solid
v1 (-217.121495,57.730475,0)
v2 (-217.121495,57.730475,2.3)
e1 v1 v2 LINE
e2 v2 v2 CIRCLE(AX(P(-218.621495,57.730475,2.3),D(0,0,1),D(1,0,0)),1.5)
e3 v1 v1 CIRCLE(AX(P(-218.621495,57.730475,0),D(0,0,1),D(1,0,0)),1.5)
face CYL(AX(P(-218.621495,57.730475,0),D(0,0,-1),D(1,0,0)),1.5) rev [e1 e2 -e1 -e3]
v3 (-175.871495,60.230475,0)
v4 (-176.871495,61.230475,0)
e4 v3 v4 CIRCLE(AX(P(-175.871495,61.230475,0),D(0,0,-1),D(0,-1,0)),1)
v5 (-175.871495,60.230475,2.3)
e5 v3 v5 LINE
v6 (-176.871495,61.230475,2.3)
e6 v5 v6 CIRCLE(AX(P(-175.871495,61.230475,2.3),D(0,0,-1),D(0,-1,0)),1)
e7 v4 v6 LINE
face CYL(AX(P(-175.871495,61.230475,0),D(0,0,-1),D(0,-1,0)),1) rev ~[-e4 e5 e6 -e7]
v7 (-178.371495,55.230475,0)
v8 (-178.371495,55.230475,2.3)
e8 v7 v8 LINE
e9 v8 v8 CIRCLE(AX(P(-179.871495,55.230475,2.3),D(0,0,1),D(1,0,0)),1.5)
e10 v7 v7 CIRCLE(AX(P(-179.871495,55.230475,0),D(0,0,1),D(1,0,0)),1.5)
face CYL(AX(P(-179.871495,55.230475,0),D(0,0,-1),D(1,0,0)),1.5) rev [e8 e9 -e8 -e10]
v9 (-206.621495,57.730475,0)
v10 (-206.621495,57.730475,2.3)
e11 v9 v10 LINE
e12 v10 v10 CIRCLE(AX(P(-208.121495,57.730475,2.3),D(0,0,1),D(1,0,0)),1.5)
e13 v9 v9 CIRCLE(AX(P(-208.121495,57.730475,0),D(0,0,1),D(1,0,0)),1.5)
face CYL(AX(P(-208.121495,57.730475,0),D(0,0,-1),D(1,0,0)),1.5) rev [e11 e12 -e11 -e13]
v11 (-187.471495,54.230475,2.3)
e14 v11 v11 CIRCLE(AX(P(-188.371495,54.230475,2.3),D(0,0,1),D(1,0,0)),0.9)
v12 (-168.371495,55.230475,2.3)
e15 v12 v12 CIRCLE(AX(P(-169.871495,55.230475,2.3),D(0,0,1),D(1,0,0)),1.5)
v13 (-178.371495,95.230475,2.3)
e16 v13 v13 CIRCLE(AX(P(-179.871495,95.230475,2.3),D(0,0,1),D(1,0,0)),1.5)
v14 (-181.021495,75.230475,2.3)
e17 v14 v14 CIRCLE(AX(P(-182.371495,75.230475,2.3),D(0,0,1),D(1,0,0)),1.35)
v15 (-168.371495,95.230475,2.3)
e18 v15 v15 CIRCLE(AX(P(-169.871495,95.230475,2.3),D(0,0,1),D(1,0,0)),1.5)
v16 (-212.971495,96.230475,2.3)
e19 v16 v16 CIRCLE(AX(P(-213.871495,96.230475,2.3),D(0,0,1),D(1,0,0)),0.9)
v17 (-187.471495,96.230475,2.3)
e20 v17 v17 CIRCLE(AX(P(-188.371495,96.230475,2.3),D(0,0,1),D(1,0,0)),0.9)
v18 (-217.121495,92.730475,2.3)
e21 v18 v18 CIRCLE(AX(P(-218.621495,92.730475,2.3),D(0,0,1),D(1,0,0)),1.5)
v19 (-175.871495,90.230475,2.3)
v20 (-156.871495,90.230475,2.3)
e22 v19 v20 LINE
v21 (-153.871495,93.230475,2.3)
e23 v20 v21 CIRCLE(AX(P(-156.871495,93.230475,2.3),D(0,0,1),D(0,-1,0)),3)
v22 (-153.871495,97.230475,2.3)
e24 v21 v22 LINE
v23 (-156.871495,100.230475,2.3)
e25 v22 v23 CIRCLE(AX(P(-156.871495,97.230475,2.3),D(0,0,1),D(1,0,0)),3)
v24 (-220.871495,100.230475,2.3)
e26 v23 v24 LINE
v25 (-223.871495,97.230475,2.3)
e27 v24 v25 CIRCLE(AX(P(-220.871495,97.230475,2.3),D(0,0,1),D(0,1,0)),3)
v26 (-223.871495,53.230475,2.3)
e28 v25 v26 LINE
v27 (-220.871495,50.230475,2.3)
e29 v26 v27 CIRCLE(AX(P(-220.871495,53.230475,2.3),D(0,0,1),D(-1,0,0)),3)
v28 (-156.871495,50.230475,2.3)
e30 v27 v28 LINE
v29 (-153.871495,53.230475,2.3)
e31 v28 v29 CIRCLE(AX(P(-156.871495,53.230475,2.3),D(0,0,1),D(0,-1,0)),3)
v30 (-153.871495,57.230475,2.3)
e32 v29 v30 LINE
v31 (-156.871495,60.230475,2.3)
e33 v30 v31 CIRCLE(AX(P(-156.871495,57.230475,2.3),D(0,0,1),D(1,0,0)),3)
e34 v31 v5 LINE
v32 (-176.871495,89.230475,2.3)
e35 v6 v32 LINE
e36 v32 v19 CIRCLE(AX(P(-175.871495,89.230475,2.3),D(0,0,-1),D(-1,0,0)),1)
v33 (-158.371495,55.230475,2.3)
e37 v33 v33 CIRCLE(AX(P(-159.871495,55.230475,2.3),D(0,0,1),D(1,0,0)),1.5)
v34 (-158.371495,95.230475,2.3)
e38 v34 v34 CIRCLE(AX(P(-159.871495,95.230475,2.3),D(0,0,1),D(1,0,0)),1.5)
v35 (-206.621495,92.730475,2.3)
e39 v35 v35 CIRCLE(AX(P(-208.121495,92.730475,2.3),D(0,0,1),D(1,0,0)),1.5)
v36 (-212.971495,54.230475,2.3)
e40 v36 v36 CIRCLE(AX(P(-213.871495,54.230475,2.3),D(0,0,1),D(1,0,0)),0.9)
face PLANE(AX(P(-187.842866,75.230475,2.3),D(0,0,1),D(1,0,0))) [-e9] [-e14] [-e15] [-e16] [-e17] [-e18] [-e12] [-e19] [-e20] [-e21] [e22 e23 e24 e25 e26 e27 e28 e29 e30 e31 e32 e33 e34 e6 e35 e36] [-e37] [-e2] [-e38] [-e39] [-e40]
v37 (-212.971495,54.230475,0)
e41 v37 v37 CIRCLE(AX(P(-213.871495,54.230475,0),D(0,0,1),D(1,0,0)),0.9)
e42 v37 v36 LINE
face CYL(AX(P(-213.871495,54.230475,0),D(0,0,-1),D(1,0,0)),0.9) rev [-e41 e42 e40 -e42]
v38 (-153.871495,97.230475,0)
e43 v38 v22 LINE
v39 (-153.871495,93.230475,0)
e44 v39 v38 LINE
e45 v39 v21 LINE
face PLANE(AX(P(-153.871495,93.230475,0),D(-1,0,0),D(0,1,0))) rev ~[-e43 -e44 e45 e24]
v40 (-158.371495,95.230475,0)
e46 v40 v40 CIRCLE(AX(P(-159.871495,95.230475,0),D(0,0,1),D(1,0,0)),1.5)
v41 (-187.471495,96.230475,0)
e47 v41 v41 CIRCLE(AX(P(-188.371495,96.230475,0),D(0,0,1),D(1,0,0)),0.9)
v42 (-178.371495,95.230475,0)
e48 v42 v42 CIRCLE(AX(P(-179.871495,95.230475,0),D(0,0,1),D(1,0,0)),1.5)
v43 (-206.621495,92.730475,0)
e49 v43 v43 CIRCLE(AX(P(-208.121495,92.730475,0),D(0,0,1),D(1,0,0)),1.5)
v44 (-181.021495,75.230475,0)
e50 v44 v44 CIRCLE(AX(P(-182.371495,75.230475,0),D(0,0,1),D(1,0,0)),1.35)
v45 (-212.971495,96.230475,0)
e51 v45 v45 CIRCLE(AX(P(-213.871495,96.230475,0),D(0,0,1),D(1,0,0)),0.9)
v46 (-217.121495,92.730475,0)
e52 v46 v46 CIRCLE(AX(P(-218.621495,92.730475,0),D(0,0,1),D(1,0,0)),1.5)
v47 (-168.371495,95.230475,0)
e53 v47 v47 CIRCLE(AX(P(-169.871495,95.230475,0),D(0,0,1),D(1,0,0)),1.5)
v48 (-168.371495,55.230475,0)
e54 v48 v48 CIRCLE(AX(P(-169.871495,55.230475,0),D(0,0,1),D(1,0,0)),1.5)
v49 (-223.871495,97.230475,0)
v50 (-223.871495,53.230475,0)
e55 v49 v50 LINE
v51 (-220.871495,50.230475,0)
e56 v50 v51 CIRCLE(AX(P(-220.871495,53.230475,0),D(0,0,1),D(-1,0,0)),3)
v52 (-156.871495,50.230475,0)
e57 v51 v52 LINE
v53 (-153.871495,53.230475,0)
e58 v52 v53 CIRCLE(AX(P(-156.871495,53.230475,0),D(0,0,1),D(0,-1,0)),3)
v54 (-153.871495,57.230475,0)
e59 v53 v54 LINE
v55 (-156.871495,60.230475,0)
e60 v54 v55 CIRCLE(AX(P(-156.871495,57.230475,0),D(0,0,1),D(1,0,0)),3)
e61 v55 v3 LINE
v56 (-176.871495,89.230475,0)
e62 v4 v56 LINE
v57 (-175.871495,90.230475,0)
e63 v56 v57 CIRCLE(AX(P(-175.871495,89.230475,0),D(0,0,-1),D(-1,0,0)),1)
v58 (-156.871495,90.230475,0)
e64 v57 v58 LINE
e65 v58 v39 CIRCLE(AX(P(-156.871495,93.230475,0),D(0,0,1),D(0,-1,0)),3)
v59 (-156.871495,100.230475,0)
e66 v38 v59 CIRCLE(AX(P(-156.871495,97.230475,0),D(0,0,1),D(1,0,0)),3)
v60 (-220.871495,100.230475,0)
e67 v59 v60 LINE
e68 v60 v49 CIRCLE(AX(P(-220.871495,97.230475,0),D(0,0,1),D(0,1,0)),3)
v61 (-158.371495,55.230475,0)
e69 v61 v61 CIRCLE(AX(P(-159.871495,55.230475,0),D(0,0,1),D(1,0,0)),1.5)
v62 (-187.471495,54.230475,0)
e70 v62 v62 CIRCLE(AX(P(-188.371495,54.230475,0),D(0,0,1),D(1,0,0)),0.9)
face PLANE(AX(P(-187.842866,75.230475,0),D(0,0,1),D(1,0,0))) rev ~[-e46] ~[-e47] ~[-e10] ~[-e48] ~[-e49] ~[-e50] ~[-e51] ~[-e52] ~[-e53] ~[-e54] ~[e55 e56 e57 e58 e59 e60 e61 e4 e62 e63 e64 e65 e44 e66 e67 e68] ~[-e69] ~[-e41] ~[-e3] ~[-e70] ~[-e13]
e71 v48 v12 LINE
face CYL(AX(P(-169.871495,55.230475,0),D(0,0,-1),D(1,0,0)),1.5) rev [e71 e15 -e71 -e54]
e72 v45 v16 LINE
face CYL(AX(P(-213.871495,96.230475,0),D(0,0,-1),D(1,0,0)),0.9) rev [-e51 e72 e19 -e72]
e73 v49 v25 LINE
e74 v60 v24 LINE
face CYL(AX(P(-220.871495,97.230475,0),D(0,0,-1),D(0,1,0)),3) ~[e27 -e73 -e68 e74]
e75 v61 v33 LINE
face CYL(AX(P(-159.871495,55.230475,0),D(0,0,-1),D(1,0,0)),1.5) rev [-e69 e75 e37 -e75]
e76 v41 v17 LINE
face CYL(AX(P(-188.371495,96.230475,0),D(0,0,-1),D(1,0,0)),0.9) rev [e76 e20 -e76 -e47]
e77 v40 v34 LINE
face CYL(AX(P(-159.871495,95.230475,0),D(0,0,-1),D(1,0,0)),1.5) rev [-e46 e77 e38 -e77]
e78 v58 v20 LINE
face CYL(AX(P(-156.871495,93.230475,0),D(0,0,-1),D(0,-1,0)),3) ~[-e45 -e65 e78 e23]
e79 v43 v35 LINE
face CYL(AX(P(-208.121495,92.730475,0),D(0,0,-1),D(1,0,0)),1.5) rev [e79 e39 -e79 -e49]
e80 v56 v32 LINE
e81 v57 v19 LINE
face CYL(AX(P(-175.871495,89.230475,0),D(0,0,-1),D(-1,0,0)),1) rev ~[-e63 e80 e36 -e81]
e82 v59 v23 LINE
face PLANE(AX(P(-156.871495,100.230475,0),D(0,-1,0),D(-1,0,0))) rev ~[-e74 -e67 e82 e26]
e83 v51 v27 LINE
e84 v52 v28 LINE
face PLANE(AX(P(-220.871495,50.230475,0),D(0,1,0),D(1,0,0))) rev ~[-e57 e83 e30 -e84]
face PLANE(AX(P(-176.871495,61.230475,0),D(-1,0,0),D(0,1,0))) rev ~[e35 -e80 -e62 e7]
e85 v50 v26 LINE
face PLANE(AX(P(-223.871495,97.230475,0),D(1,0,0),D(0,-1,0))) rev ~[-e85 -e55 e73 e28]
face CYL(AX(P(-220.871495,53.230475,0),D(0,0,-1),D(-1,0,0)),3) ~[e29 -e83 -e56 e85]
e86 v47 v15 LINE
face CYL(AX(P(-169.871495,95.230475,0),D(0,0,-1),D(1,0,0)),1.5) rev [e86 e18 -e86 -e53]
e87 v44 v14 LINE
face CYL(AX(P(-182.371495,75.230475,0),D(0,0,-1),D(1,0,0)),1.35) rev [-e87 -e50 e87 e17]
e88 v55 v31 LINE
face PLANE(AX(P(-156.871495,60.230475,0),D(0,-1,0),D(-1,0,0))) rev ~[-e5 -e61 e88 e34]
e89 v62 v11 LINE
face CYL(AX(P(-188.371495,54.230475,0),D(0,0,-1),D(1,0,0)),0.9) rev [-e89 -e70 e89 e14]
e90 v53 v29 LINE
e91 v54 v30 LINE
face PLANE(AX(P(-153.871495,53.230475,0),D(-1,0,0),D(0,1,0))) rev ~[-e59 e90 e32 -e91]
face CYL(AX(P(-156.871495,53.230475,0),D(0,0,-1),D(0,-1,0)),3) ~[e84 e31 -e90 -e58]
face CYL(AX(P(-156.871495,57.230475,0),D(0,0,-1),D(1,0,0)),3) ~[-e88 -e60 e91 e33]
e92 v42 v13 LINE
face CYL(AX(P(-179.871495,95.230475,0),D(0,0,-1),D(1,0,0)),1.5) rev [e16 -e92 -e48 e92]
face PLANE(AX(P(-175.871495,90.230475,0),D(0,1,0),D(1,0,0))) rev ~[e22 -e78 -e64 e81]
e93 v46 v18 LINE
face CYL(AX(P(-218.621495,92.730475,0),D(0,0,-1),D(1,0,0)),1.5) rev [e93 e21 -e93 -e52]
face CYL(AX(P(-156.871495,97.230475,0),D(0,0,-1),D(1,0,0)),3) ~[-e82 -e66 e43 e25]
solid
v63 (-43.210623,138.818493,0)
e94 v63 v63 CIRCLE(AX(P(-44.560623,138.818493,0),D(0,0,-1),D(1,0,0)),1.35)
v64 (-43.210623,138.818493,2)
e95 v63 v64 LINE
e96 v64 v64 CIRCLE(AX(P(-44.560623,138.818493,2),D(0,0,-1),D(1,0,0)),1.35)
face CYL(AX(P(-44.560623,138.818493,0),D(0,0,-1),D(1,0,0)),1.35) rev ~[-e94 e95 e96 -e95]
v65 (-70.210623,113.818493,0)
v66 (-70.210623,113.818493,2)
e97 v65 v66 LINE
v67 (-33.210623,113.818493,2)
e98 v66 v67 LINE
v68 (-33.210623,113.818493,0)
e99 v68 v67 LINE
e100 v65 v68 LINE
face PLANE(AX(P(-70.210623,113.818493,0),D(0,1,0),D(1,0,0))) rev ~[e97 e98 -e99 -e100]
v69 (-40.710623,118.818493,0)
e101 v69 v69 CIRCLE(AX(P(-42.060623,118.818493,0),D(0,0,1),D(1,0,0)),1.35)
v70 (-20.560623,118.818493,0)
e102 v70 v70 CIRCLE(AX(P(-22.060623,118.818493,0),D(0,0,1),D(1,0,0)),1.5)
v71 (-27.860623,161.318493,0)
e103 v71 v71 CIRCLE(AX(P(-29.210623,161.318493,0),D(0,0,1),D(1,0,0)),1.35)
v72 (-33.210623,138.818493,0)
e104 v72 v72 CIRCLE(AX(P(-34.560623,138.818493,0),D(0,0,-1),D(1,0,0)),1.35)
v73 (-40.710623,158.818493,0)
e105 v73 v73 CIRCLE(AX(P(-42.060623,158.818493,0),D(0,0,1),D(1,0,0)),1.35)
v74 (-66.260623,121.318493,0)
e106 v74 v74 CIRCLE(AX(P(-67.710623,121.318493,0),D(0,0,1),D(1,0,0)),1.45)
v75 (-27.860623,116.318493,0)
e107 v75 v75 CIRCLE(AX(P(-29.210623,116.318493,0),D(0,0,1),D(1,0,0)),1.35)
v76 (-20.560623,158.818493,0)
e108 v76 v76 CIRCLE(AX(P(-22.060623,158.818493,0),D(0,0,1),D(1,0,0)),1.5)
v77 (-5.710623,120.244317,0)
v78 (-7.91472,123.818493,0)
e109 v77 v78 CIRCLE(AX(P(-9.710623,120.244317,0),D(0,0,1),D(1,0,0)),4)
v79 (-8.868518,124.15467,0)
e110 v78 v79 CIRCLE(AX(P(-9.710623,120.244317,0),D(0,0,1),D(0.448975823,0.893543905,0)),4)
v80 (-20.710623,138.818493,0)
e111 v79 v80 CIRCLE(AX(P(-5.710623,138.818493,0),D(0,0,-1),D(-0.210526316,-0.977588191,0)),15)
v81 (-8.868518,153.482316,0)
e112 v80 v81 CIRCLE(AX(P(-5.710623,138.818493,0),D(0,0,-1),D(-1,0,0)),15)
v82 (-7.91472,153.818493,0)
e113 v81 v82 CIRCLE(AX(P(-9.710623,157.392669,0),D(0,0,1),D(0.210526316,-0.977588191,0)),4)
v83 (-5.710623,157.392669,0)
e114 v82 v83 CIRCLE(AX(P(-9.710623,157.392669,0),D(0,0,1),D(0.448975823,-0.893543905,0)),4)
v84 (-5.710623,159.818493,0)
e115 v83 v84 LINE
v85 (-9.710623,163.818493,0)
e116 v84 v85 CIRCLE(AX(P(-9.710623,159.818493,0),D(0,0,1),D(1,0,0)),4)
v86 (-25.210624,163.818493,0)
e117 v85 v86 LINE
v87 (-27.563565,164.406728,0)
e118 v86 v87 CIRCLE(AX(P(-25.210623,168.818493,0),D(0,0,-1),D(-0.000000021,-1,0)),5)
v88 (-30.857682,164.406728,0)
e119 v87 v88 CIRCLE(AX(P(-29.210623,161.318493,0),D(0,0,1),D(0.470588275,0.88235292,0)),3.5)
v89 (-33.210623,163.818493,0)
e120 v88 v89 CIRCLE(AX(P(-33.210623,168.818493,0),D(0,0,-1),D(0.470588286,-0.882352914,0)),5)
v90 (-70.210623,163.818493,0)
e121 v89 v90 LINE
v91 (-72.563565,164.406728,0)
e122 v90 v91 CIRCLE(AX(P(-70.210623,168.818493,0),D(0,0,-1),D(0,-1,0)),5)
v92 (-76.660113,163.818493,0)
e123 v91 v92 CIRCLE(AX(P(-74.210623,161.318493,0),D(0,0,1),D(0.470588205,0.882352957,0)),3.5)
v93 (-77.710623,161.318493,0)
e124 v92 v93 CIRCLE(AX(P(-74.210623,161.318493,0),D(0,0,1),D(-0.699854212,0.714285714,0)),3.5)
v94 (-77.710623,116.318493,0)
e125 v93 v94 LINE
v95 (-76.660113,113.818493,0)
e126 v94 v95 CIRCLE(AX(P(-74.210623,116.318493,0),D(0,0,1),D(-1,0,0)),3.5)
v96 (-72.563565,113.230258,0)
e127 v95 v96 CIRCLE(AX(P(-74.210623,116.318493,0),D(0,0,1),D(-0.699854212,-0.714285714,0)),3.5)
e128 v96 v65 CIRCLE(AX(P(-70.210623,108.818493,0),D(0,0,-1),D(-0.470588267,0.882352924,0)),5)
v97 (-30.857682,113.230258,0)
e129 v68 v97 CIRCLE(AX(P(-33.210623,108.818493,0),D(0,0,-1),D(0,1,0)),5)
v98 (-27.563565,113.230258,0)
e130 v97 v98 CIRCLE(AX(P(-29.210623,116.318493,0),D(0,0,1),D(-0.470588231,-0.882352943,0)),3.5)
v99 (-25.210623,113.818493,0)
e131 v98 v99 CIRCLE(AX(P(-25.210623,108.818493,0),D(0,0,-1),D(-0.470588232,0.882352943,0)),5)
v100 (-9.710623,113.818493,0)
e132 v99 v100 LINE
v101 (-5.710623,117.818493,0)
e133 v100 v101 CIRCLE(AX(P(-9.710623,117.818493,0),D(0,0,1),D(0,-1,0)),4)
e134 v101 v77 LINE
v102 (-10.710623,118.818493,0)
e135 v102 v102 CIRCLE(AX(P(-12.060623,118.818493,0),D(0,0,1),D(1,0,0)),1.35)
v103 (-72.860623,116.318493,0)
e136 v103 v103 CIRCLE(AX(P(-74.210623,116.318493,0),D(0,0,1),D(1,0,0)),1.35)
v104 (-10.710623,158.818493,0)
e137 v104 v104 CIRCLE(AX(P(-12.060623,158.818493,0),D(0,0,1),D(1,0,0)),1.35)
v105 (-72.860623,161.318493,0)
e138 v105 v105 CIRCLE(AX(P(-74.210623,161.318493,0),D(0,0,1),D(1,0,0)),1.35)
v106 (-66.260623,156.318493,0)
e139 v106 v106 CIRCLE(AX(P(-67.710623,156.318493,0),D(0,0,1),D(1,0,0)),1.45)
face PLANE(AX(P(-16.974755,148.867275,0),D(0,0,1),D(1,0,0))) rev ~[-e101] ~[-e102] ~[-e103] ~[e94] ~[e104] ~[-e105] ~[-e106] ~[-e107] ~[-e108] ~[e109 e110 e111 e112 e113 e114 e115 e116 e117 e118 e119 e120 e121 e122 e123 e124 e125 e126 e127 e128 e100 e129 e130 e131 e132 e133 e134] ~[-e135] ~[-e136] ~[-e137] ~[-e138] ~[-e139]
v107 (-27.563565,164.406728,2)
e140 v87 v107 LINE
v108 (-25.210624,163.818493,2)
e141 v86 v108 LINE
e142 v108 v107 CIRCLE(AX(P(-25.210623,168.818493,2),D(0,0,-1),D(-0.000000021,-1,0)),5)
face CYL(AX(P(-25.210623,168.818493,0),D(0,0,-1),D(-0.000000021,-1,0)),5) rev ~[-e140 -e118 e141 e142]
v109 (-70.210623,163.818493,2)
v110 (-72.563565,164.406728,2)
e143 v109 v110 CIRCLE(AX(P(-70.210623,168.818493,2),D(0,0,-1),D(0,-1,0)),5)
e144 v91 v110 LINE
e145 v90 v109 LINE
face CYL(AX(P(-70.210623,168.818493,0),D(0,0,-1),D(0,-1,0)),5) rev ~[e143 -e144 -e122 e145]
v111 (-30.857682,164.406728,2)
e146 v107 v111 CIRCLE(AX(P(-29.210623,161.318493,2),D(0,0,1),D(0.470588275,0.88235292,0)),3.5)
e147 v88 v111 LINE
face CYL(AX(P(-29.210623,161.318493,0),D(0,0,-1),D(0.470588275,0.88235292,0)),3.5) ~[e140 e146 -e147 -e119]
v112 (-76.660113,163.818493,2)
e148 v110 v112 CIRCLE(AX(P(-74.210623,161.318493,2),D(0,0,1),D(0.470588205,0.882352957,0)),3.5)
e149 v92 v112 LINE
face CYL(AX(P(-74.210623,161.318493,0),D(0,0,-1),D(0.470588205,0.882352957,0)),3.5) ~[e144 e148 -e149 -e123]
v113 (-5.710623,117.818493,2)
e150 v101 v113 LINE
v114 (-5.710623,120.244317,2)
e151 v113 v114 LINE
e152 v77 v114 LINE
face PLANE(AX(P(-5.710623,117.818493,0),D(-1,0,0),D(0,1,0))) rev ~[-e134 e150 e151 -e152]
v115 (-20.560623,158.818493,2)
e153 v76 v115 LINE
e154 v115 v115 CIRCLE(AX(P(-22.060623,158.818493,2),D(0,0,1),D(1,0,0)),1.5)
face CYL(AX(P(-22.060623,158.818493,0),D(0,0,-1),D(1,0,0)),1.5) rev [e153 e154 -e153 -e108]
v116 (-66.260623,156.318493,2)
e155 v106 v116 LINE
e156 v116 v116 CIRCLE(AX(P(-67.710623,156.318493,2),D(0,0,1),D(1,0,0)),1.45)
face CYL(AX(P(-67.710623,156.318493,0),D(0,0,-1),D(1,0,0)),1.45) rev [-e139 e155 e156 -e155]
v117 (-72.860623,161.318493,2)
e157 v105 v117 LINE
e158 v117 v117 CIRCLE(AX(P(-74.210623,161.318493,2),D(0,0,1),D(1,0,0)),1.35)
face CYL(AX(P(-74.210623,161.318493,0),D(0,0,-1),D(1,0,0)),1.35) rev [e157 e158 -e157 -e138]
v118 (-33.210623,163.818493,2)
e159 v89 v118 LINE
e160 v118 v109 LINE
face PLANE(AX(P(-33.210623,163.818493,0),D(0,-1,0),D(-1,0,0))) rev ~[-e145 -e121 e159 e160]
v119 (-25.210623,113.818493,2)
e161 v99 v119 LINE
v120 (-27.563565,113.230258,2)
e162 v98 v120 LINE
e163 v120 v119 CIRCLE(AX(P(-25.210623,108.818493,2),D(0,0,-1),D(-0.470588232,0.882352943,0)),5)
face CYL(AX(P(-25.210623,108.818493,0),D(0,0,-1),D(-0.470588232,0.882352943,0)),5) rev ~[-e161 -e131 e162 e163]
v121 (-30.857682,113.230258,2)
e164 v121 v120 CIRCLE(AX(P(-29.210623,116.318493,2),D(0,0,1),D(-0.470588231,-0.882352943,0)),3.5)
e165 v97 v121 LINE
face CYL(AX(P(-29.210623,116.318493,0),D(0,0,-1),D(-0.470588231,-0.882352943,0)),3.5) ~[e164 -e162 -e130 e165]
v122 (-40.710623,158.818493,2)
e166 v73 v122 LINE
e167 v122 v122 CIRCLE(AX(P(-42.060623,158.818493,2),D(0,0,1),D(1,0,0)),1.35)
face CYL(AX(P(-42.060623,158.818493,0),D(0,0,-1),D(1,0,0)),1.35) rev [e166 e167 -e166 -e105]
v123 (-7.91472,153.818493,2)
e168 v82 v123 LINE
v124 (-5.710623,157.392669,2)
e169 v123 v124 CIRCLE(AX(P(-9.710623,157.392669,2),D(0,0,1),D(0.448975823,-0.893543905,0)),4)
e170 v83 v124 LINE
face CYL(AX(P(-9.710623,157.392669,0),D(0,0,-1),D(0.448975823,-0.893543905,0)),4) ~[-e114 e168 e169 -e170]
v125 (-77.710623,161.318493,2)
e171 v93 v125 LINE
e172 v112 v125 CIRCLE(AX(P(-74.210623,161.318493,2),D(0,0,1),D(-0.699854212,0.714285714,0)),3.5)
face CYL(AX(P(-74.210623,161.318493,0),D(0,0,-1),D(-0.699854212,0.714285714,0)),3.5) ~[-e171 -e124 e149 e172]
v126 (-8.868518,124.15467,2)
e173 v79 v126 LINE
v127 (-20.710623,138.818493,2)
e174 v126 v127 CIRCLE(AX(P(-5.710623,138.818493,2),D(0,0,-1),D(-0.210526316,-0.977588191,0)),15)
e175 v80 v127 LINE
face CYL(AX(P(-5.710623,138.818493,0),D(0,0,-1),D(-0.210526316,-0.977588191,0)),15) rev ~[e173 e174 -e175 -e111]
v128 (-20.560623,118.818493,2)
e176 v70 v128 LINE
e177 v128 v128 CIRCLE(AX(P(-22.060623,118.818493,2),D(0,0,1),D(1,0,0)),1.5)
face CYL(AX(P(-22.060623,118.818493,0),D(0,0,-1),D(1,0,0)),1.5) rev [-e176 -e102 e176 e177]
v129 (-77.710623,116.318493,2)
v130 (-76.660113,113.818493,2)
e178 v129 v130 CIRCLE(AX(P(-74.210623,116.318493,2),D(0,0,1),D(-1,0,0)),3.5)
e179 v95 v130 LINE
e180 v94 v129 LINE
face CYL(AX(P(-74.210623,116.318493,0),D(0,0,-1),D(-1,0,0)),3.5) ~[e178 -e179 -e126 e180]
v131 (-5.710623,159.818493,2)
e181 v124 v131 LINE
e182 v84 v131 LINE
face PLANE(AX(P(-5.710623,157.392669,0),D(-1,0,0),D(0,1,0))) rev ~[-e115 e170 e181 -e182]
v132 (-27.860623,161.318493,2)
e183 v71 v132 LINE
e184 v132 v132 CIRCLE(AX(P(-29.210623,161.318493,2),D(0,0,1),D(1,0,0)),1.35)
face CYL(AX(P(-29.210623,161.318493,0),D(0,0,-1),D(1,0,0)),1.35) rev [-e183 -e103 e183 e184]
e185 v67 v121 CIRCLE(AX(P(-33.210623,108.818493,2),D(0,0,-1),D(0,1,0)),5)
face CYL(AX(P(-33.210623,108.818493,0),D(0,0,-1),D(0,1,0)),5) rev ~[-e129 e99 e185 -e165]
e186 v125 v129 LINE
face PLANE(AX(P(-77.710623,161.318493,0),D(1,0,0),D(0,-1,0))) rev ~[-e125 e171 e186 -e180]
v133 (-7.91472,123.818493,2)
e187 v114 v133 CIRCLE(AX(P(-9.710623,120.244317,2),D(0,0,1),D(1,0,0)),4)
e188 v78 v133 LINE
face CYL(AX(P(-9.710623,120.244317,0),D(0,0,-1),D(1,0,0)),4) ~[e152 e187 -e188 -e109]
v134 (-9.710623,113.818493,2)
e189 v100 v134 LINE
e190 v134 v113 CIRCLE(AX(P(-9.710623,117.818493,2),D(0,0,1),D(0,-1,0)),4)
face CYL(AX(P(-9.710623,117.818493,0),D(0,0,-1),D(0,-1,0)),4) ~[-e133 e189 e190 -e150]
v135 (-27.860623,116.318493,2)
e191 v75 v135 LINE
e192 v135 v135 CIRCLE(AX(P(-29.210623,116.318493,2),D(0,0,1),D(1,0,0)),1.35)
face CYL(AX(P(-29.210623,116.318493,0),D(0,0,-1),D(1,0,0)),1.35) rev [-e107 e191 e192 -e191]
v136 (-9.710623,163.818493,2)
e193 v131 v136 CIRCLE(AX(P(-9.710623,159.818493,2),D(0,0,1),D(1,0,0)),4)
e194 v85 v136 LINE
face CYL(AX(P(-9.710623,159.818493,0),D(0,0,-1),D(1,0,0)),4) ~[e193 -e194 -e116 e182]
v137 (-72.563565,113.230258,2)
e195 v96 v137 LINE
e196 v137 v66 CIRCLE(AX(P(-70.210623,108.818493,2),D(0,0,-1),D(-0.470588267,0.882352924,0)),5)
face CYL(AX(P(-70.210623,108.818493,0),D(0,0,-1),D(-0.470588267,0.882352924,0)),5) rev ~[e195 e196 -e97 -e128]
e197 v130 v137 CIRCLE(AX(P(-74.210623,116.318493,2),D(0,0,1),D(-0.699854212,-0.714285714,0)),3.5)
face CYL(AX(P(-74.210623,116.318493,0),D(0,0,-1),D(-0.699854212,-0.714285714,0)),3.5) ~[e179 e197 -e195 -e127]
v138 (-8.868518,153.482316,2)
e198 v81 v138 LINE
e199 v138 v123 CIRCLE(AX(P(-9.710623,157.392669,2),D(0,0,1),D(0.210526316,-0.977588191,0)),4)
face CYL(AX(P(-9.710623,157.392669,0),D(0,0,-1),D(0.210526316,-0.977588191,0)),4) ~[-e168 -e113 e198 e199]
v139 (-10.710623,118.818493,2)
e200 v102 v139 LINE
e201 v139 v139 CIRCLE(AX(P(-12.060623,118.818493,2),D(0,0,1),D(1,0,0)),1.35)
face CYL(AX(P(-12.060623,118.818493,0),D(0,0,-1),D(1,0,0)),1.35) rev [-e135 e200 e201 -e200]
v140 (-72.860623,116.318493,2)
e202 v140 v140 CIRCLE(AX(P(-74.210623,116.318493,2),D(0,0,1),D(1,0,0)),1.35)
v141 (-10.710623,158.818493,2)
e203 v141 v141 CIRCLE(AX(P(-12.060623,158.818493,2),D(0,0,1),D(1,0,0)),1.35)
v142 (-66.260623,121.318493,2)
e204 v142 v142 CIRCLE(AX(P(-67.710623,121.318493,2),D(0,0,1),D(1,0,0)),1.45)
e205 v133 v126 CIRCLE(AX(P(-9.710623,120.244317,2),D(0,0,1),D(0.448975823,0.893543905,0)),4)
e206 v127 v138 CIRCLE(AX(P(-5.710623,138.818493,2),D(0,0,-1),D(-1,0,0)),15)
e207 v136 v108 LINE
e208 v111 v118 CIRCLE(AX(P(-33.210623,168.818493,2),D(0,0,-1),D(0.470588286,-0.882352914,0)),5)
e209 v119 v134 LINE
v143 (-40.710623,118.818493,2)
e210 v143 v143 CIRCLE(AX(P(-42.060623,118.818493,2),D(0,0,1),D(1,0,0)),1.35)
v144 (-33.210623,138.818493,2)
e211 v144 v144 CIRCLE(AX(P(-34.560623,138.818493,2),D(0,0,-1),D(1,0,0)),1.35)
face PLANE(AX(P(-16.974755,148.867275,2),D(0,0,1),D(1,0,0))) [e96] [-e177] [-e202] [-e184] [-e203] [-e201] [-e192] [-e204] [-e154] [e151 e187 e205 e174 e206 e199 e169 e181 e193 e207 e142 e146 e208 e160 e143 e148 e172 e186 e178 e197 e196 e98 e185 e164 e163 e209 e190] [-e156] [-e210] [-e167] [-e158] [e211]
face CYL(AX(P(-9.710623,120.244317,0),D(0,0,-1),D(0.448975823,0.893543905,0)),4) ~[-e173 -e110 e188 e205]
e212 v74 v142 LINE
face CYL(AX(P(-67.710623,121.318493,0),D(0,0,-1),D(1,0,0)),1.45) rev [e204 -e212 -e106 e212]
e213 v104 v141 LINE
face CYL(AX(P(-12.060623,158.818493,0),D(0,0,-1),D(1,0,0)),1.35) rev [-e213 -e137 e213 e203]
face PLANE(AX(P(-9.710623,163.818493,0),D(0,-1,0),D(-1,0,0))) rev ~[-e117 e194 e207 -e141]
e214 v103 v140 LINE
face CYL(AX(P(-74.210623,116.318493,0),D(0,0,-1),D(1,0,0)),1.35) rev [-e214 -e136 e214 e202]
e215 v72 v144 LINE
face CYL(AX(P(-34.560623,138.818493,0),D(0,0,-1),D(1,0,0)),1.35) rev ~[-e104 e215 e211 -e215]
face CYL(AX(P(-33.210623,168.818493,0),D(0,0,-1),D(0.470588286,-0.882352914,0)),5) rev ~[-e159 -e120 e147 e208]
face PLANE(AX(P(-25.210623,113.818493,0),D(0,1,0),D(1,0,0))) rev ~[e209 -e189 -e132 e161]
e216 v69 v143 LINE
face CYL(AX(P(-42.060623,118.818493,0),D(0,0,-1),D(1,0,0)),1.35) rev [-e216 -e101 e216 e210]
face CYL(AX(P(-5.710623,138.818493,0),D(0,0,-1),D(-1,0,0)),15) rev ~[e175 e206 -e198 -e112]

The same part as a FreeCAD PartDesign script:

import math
import FreeCAD as App
import Part
import Sketcher

doc = App.newDocument("Part")
body = doc.addObject("PartDesign::Body", "Body")

sketch1 = doc.addObject("Sketcher::SketchObject", "Sketch")
body.addObject(sketch1)
sketch1.AttachmentSupport = (doc.XY_Plane, [""])
sketch1.MapMode = "FlatFace"
sketch1.addGeometry(Part.ArcOfCircle(Part.Circle(App.Vector(-156.871495, 97.230475, 0), App.Vector(0, 0, 1), 3), math.radians(0), math.radians(90)), False)
sketch1.addGeometry(Part.LineSegment(App.Vector(-156.871495, 100.230475, 0), App.Vector(-220.871495, 100.230475, 0)), False)
sketch1.addGeometry(Part.ArcOfCircle(Part.Circle(App.Vector(-220.871495, 97.230475, 0), App.Vector(0, 0, 1), 3), math.radians(90), math.radians(180)), False)
sketch1.addGeometry(Part.LineSegment(App.Vector(-223.871495, 97.230475, 0), App.Vector(-223.871495, 53.230475, 0)), False)
sketch1.addGeometry(Part.ArcOfCircle(Part.Circle(App.Vector(-220.871495, 53.230475, 0), App.Vector(0, 0, 1), 3), math.radians(180), math.radians(270)), False)
sketch1.addGeometry(Part.LineSegment(App.Vector(-220.871495, 50.230475, 0), App.Vector(-156.871495, 50.230475, 0)), False)
sketch1.addGeometry(Part.ArcOfCircle(Part.Circle(App.Vector(-156.871495, 53.230475, 0), App.Vector(0, 0, 1), 3), math.radians(-90), math.radians(0)), False)
sketch1.addGeometry(Part.LineSegment(App.Vector(-153.871495, 53.230475, 0), App.Vector(-153.871495, 57.230475, 0)), False)
sketch1.addGeometry(Part.ArcOfCircle(Part.Circle(App.Vector(-156.871495, 57.230475, 0), App.Vector(0, 0, 1), 3), math.radians(0), math.radians(90)), False)
sketch1.addGeometry(Part.LineSegment(App.Vector(-156.871495, 60.230475, 0), App.Vector(-175.871495, 60.230475, 0)), False)
sketch1.addGeometry(Part.ArcOfCircle(Part.Circle(App.Vector(-175.871495, 61.230475, 0), App.Vector(0, 0, 1), 1), math.radians(180), math.radians(270)), False)
sketch1.addGeometry(Part.LineSegment(App.Vector(-176.871495, 61.230475, 0), App.Vector(-176.871495, 89.230475, 0)), False)
sketch1.addGeometry(Part.ArcOfCircle(Part.Circle(App.Vector(-175.871495, 89.230475, 0), App.Vector(0, 0, 1), 1), math.radians(90), math.radians(180)), False)
sketch1.addGeometry(Part.LineSegment(App.Vector(-175.871495, 90.230475, 0), App.Vector(-156.871495, 90.230475, 0)), False)
sketch1.addGeometry(Part.ArcOfCircle(Part.Circle(App.Vector(-156.871495, 93.230475, 0), App.Vector(0, 0, 1), 3), math.radians(-90), math.radians(0)), False)
sketch1.addGeometry(Part.LineSegment(App.Vector(-153.871495, 93.230475, 0), App.Vector(-153.871495, 97.230475, 0)), False)
sketch1.addGeometry(Part.Circle(App.Vector(-218.621495, 57.730475, 0), App.Vector(0, 0, 1), 1.5), False)
sketch1.addGeometry(Part.Circle(App.Vector(-213.871495, 54.230475, 0), App.Vector(0, 0, 1), 0.9), False)
sketch1.addGeometry(Part.Circle(App.Vector(-208.121495, 57.730475, 0), App.Vector(0, 0, 1), 1.5), False)
sketch1.addGeometry(Part.Circle(App.Vector(-188.371495, 54.230475, 0), App.Vector(0, 0, 1), 0.9), False)
sketch1.addGeometry(Part.Circle(App.Vector(-179.871495, 55.230475, 0), App.Vector(0, 0, 1), 1.5), False)
sketch1.addGeometry(Part.Circle(App.Vector(-169.871495, 55.230475, 0), App.Vector(0, 0, 1), 1.5), False)
sketch1.addGeometry(Part.Circle(App.Vector(-159.871495, 55.230475, 0), App.Vector(0, 0, 1), 1.5), False)
sketch1.addGeometry(Part.Circle(App.Vector(-218.621495, 92.730475, 0), App.Vector(0, 0, 1), 1.5), False)
sketch1.addGeometry(Part.Circle(App.Vector(-208.121495, 92.730475, 0), App.Vector(0, 0, 1), 1.5), False)
sketch1.addGeometry(Part.Circle(App.Vector(-213.871495, 96.230475, 0), App.Vector(0, 0, 1), 0.9), False)
sketch1.addGeometry(Part.Circle(App.Vector(-182.371495, 75.230475, 0), App.Vector(0, 0, 1), 1.35), False)
sketch1.addGeometry(Part.Circle(App.Vector(-188.371495, 96.230475, 0), App.Vector(0, 0, 1), 0.9), False)
sketch1.addGeometry(Part.Circle(App.Vector(-179.871495, 95.230475, 0), App.Vector(0, 0, 1), 1.5), False)
sketch1.addGeometry(Part.Circle(App.Vector(-169.871495, 95.230475, 0), App.Vector(0, 0, 1), 1.5), False)
sketch1.addGeometry(Part.Circle(App.Vector(-159.871495, 95.230475, 0), App.Vector(0, 0, 1), 1.5), False)
sketch1.addConstraint(Sketcher.Constraint("Tangent", 0, 2, 1, 1))
sketch1.addConstraint(Sketcher.Constraint("Tangent", 1, 2, 2, 1))
sketch1.addConstraint(Sketcher.Constraint("Tangent", 2, 2, 3, 1))
sketch1.addConstraint(Sketcher.Constraint("Tangent", 3, 2, 4, 1))
sketch1.addConstraint(Sketcher.Constraint("Tangent", 4, 2, 5, 1))
sketch1.addConstraint(Sketcher.Constraint("Tangent", 5, 2, 6, 1))
sketch1.addConstraint(Sketcher.Constraint("Tangent", 6, 2, 7, 1))
sketch1.addConstraint(Sketcher.Constraint("Tangent", 7, 2, 8, 1))
sketch1.addConstraint(Sketcher.Constraint("Tangent", 8, 2, 9, 1))
sketch1.addConstraint(Sketcher.Constraint("Tangent", 9, 2, 10, 2))
sketch1.addConstraint(Sketcher.Constraint("Tangent", 10, 1, 11, 1))
sketch1.addConstraint(Sketcher.Constraint("Tangent", 11, 2, 12, 2))
sketch1.addConstraint(Sketcher.Constraint("Tangent", 12, 1, 13, 1))
sketch1.addConstraint(Sketcher.Constraint("Tangent", 13, 2, 14, 1))
sketch1.addConstraint(Sketcher.Constraint("Tangent", 14, 2, 15, 1))
sketch1.addConstraint(Sketcher.Constraint("Tangent", 15, 2, 0, 1))
sketch1.addConstraint(Sketcher.Constraint("Horizontal", 1))
sketch1.addConstraint(Sketcher.Constraint("Vertical", 3))
sketch1.addConstraint(Sketcher.Constraint("Horizontal", 5))
sketch1.addConstraint(Sketcher.Constraint("Vertical", 7))
sketch1.addConstraint(Sketcher.Constraint("Horizontal", 9))
sketch1.addConstraint(Sketcher.Constraint("Vertical", 11))
sketch1.addConstraint(Sketcher.Constraint("Horizontal", 13))
sketch1.addConstraint(Sketcher.Constraint("Vertical", 15))
sketch1.addConstraint(Sketcher.Constraint("Equal", 0, 2))
sketch1.addConstraint(Sketcher.Constraint("Equal", 2, 4))
sketch1.addConstraint(Sketcher.Constraint("Equal", 4, 6))
sketch1.addConstraint(Sketcher.Constraint("Equal", 6, 8))
sketch1.addConstraint(Sketcher.Constraint("Equal", 10, 12))
sketch1.addConstraint(Sketcher.Constraint("Equal", 8, 14))
sketch1.addConstraint(Sketcher.Constraint("Equal", 16, 18))
sketch1.addConstraint(Sketcher.Constraint("Equal", 17, 19))
sketch1.addConstraint(Sketcher.Constraint("Equal", 18, 20))
sketch1.addConstraint(Sketcher.Constraint("Equal", 20, 21))
sketch1.addConstraint(Sketcher.Constraint("Equal", 21, 22))
sketch1.addConstraint(Sketcher.Constraint("Equal", 22, 23))
sketch1.addConstraint(Sketcher.Constraint("Equal", 23, 24))
sketch1.addConstraint(Sketcher.Constraint("Equal", 19, 25))
sketch1.addConstraint(Sketcher.Constraint("Equal", 25, 27))
sketch1.addConstraint(Sketcher.Constraint("Equal", 24, 28))
sketch1.addConstraint(Sketcher.Constraint("Equal", 28, 29))
sketch1.addConstraint(Sketcher.Constraint("Equal", 29, 30))
sketch1.addConstraint(Sketcher.Constraint("Horizontal", 16, 3, 18, 3))
sketch1.addConstraint(Sketcher.Constraint("Horizontal", 17, 3, 19, 3))
sketch1.addConstraint(Sketcher.Constraint("Horizontal", 20, 3, 21, 3))
sketch1.addConstraint(Sketcher.Constraint("Horizontal", 21, 3, 22, 3))
sketch1.addConstraint(Sketcher.Constraint("Horizontal", 23, 3, 24, 3))
sketch1.addConstraint(Sketcher.Constraint("Horizontal", 25, 3, 27, 3))
sketch1.addConstraint(Sketcher.Constraint("Horizontal", 28, 3, 29, 3))
sketch1.addConstraint(Sketcher.Constraint("Horizontal", 29, 3, 30, 3))
sketch1.addConstraint(Sketcher.Constraint("Vertical", 0, 3, 6, 3))
sketch1.addConstraint(Sketcher.Constraint("Vertical", 16, 3, 23, 3))
sketch1.addConstraint(Sketcher.Constraint("Vertical", 18, 3, 24, 3))
sketch1.addConstraint(Sketcher.Constraint("Vertical", 17, 3, 25, 3))
sketch1.addConstraint(Sketcher.Constraint("Vertical", 19, 3, 27, 3))
sketch1.addConstraint(Sketcher.Constraint("Vertical", 20, 3, 28, 3))
sketch1.addConstraint(Sketcher.Constraint("Vertical", 21, 3, 29, 3))
sketch1.addConstraint(Sketcher.Constraint("Vertical", 22, 3, 30, 3))
sketch1.addConstraint(Sketcher.Constraint("Equal", 7, 15))
sketch1.addConstraint(Sketcher.Constraint("Diameter", 16, 3.0))
sketch1.addConstraint(Sketcher.Constraint("Radius", 0, 3.0))
sketch1.addConstraint(Sketcher.Constraint("Radius", 10, 1.0))
sketch1.addConstraint(Sketcher.Constraint("Diameter", 17, 1.8))
sketch1.addConstraint(Sketcher.Constraint("Diameter", 26, 2.7))
sketch1.addConstraint(Sketcher.Constraint("DistanceX", 1, 2, 1, 1, 64.0))
sketch1.addConstraint(Sketcher.Constraint("DistanceX", 9, 2, 9, 1, 19.0))
sketch1.addConstraint(Sketcher.Constraint("DistanceY", 3, 2, 3, 1, 44.0))
sketch1.addConstraint(Sketcher.Constraint("DistanceY", 7, 1, 7, 2, 4.0))
sketch1.addConstraint(Sketcher.Constraint("DistanceX", 4, 3, 17, 3, 7.0))
sketch1.addConstraint(Sketcher.Constraint("DistanceY", 4, 3, 17, 3, 1.0))
sketch1.addConstraint(Sketcher.Constraint("DistanceX", 20, 3, 10, 3, 4.0))
sketch1.addConstraint(Sketcher.Constraint("DistanceY", 20, 3, 10, 3, 6.0))
sketch1.addConstraint(Sketcher.Constraint("DistanceX", 10, 3, 21, 3, 6.0))
sketch1.addConstraint(Sketcher.Constraint("DistanceX", 22, 3, 6, 3, 3.0))
sketch1.addConstraint(Sketcher.Constraint("DistanceY", 16, 3, 23, 3, 35.0))
sketch1.addConstraint(Sketcher.Constraint("DistanceY", 25, 3, 2, 3, 1.0))
sketch1.addConstraint(Sketcher.Constraint("DistanceY", 26, 3, 12, 3, 14.0))
sketch1.addConstraint(Sketcher.Constraint("DistanceX", 19, 3, 26, 3, 6.0))
sketch1.addConstraint(Sketcher.Constraint("DistanceY", 12, 3, 28, 3, 6.0))
sketch1.addConstraint(Sketcher.Constraint("DistanceY", 4, 3, 16, 3, 4.5))
sketch1.addConstraint(Sketcher.Constraint("DistanceX", 16, 3, 18, 3, 10.5))
sketch1.addConstraint(Sketcher.Constraint("DistanceX", 19, 3, 10, 3, 12.5))
sketch1.addConstraint(Sketcher.Constraint("DistanceX", 4, 3, 16, 3, 2.25))
sketch1.addConstraint(Sketcher.Constraint("DistanceX", 0, 3, -1, 1, 156.871495))
sketch1.addConstraint(Sketcher.Constraint("DistanceY", -1, 1, 0, 3, 97.230475))
pad1 = doc.addObject("PartDesign::Pad", "Pad")
body.addObject(pad1)
pad1.Profile = sketch1
pad1.Length = 2.3
body2 = doc.addObject("PartDesign::Body", "Body001")

sketch2 = doc.addObject("Sketcher::SketchObject", "Sketch001")
body2.addObject(sketch2)
sketch2.AttachmentSupport = (doc.getObject("XY_Plane001"), [""])
sketch2.MapMode = "FlatFace"
sketch2.addGeometry(Part.ArcOfCircle(Part.Circle(App.Vector(-5.710623, 138.818493, 0), App.Vector(0, 0, 1), 15), math.radians(102.153197), math.radians(180)), False)
sketch2.addGeometry(Part.ArcOfCircle(Part.Circle(App.Vector(-9.710623, 157.392669, 0), App.Vector(0, 0, 1), 4), math.radians(-77.846803), math.radians(-63.322007)), False)
sketch2.addGeometry(Part.ArcOfCircle(Part.Circle(App.Vector(-9.710623, 157.392669, 0), App.Vector(0, 0, 1), 4), math.radians(-63.322007), math.radians(0)), False)
sketch2.addGeometry(Part.LineSegment(App.Vector(-5.710623, 157.392669, 0), App.Vector(-5.710623, 159.818493, 0)), False)
sketch2.addGeometry(Part.ArcOfCircle(Part.Circle(App.Vector(-9.710623, 159.818493, 0), App.Vector(0, 0, 1), 4), math.radians(0), math.radians(90)), False)
sketch2.addGeometry(Part.LineSegment(App.Vector(-9.710623, 163.818493, 0), App.Vector(-25.210624, 163.818493, 0)), False)
sketch2.addGeometry(Part.ArcOfCircle(Part.Circle(App.Vector(-25.210623, 168.818493, 0), App.Vector(0, 0, 1), 5), math.radians(-118.072485), math.radians(-90.000001)), False)
sketch2.addGeometry(Part.ArcOfCircle(Part.Circle(App.Vector(-29.210623, 161.318493, 0), App.Vector(0, 0, 1), 3.5), math.radians(61.92751), math.radians(118.072482)), False)
sketch2.addGeometry(Part.ArcOfCircle(Part.Circle(App.Vector(-33.210623, 168.818493, 0), App.Vector(0, 0, 1), 5), math.radians(-90), math.radians(-61.92751)), False)
sketch2.addGeometry(Part.LineSegment(App.Vector(-33.210623, 163.818493, 0), App.Vector(-70.210623, 163.818493, 0)), False)
sketch2.addGeometry(Part.ArcOfCircle(Part.Circle(App.Vector(-70.210623, 168.818493, 0), App.Vector(0, 0, 1), 5), math.radians(-118.072488), math.radians(-90)), False)
sketch2.addGeometry(Part.ArcOfCircle(Part.Circle(App.Vector(-74.210623, 161.318493, 0), App.Vector(0, 0, 1), 3.5), math.radians(61.927515), math.radians(134.415309)), False)
sketch2.addGeometry(Part.ArcOfCircle(Part.Circle(App.Vector(-74.210623, 161.318493, 0), App.Vector(0, 0, 1), 3.5), math.radians(134.415309), math.radians(180)), False)
sketch2.addGeometry(Part.LineSegment(App.Vector(-77.710623, 161.318493, 0), App.Vector(-77.710623, 116.318493, 0)), False)
sketch2.addGeometry(Part.ArcOfCircle(Part.Circle(App.Vector(-74.210623, 116.318493, 0), App.Vector(0, 0, 1), 3.5), math.radians(180), math.radians(225.584691)), False)
sketch2.addGeometry(Part.ArcOfCircle(Part.Circle(App.Vector(-74.210623, 116.318493, 0), App.Vector(0, 0, 1), 3.5), math.radians(-134.415309), math.radians(-61.927516)), False)
sketch2.addGeometry(Part.ArcOfCircle(Part.Circle(App.Vector(-70.210623, 108.818493, 0), App.Vector(0, 0, 1), 5), math.radians(90), math.radians(118.072489)), False)
sketch2.addGeometry(Part.LineSegment(App.Vector(-70.210623, 113.818493, 0), App.Vector(-33.210623, 113.818493, 0)), False)
sketch2.addGeometry(Part.ArcOfCircle(Part.Circle(App.Vector(-33.210623, 108.818493, 0), App.Vector(0, 0, 1), 5), math.radians(61.927513), math.radians(90)), False)
sketch2.addGeometry(Part.ArcOfCircle(Part.Circle(App.Vector(-29.210623, 116.318493, 0), App.Vector(0, 0, 1), 3.5), math.radians(-118.072487), math.radians(-61.927513)), False)
sketch2.addGeometry(Part.ArcOfCircle(Part.Circle(App.Vector(-25.210623, 108.818493, 0), App.Vector(0, 0, 1), 5), math.radians(90), math.radians(118.072487)), False)
sketch2.addGeometry(Part.LineSegment(App.Vector(-25.210623, 113.818493, 0), App.Vector(-9.710623, 113.818493, 0)), False)
sketch2.addGeometry(Part.ArcOfCircle(Part.Circle(App.Vector(-9.710623, 117.818493, 0), App.Vector(0, 0, 1), 4), math.radians(-90), math.radians(0)), False)
sketch2.addGeometry(Part.LineSegment(App.Vector(-5.710623, 117.818493, 0), App.Vector(-5.710623, 120.244317, 0)), False)
sketch2.addGeometry(Part.ArcOfCircle(Part.Circle(App.Vector(-9.710623, 120.244317, 0), App.Vector(0, 0, 1), 4), math.radians(0), math.radians(63.322007)), False)
sketch2.addGeometry(Part.ArcOfCircle(Part.Circle(App.Vector(-9.710623, 120.244317, 0), App.Vector(0, 0, 1), 4), math.radians(63.322007), math.radians(77.846803)), False)
sketch2.addGeometry(Part.ArcOfCircle(Part.Circle(App.Vector(-5.710623, 138.818493, 0), App.Vector(0, 0, 1), 15), math.radians(180), math.radians(257.846803)), False)
sketch2.addGeometry(Part.Circle(App.Vector(-74.210623, 116.318493, 0), App.Vector(0, 0, 1), 1.35), False)
sketch2.addGeometry(Part.Circle(App.Vector(-67.710623, 121.318493, 0), App.Vector(0, 0, 1), 1.45), False)
sketch2.addGeometry(Part.Circle(App.Vector(-42.060623, 118.818493, 0), App.Vector(0, 0, 1), 1.35), False)
sketch2.addGeometry(Part.Circle(App.Vector(-29.210623, 116.318493, 0), App.Vector(0, 0, 1), 1.35), False)
sketch2.addGeometry(Part.Circle(App.Vector(-22.060623, 118.818493, 0), App.Vector(0, 0, 1), 1.5), False)
sketch2.addGeometry(Part.Circle(App.Vector(-12.060623, 118.818493, 0), App.Vector(0, 0, 1), 1.35), False)
sketch2.addGeometry(Part.Circle(App.Vector(-44.560623, 138.818493, 0), App.Vector(0, 0, 1), 1.35), False)
sketch2.addGeometry(Part.Circle(App.Vector(-67.710623, 156.318493, 0), App.Vector(0, 0, 1), 1.45), False)
sketch2.addGeometry(Part.Circle(App.Vector(-74.210623, 161.318493, 0), App.Vector(0, 0, 1), 1.35), False)
sketch2.addGeometry(Part.Circle(App.Vector(-34.560623, 138.818493, 0), App.Vector(0, 0, 1), 1.35), False)
sketch2.addGeometry(Part.Circle(App.Vector(-42.060623, 158.818493, 0), App.Vector(0, 0, 1), 1.35), False)
sketch2.addGeometry(Part.Circle(App.Vector(-29.210623, 161.318493, 0), App.Vector(0, 0, 1), 1.35), False)
sketch2.addGeometry(Part.Circle(App.Vector(-22.060623, 158.818493, 0), App.Vector(0, 0, 1), 1.5), False)
sketch2.addGeometry(Part.Circle(App.Vector(-12.060623, 158.818493, 0), App.Vector(0, 0, 1), 1.35), False)
sketch2.addConstraint(Sketcher.Constraint("Tangent", 0, 1, 1, 1))
sketch2.addConstraint(Sketcher.Constraint("Tangent", 1, 2, 2, 1))
sketch2.addConstraint(Sketcher.Constraint("Tangent", 2, 2, 3, 1))
sketch2.addConstraint(Sketcher.Constraint("Tangent", 3, 2, 4, 1))
sketch2.addConstraint(Sketcher.Constraint("Tangent", 4, 2, 5, 1))
sketch2.addConstraint(Sketcher.Constraint("Tangent", 5, 2, 6, 2))
sketch2.addConstraint(Sketcher.Constraint("Tangent", 6, 1, 7, 1))
sketch2.addConstraint(Sketcher.Constraint("Tangent", 7, 2, 8, 2))
sketch2.addConstraint(Sketcher.Constraint("Tangent", 8, 1, 9, 1))
sketch2.addConstraint(Sketcher.Constraint("Tangent", 9, 2, 10, 2))
sketch2.addConstraint(Sketcher.Constraint("Tangent", 10, 1, 11, 1))
sketch2.addConstraint(Sketcher.Constraint("Tangent", 11, 2, 12, 1))
sketch2.addConstraint(Sketcher.Constraint("Tangent", 12, 2, 13, 1))
sketch2.addConstraint(Sketcher.Constraint("Tangent", 13, 2, 14, 1))
sketch2.addConstraint(Sketcher.Constraint("Tangent", 14, 2, 15, 1))
sketch2.addConstraint(Sketcher.Constraint("Tangent", 15, 2, 16, 2))
sketch2.addConstraint(Sketcher.Constraint("Tangent", 16, 1, 17, 1))
sketch2.addConstraint(Sketcher.Constraint("Tangent", 17, 2, 18, 2))
sketch2.addConstraint(Sketcher.Constraint("Tangent", 18, 1, 19, 1))
sketch2.addConstraint(Sketcher.Constraint("Tangent", 19, 2, 20, 2))
sketch2.addConstraint(Sketcher.Constraint("Tangent", 20, 1, 21, 1))
sketch2.addConstraint(Sketcher.Constraint("Tangent", 21, 2, 22, 1))
sketch2.addConstraint(Sketcher.Constraint("Tangent", 22, 2, 23, 1))
sketch2.addConstraint(Sketcher.Constraint("Tangent", 23, 2, 24, 1))
sketch2.addConstraint(Sketcher.Constraint("Tangent", 24, 2, 25, 1))
sketch2.addConstraint(Sketcher.Constraint("Tangent", 25, 2, 26, 2))
sketch2.addConstraint(Sketcher.Constraint("Tangent", 26, 1, 0, 2))
sketch2.addConstraint(Sketcher.Constraint("Vertical", 3))
sketch2.addConstraint(Sketcher.Constraint("Horizontal", 5))
sketch2.addConstraint(Sketcher.Constraint("Horizontal", 9))
sketch2.addConstraint(Sketcher.Constraint("Vertical", 13))
sketch2.addConstraint(Sketcher.Constraint("Horizontal", 17))
sketch2.addConstraint(Sketcher.Constraint("Horizontal", 21))
sketch2.addConstraint(Sketcher.Constraint("Vertical", 23))
sketch2.addConstraint(Sketcher.Constraint("Coincident", 27, 3, 14, 3))
sketch2.addConstraint(Sketcher.Constraint("Coincident", 30, 3, 19, 3))
sketch2.addConstraint(Sketcher.Constraint("Coincident", 35, 3, 11, 3))
sketch2.addConstraint(Sketcher.Constraint("Coincident", 38, 3, 7, 3))
sketch2.addConstraint(Sketcher.Constraint("Equal", 1, 2))
sketch2.addConstraint(Sketcher.Constraint("Equal", 2, 4))
sketch2.addConstraint(Sketcher.Constraint("Equal", 6, 8))
sketch2.addConstraint(Sketcher.Constraint("Equal", 8, 10))
sketch2.addConstraint(Sketcher.Constraint("Equal", 7, 11))
sketch2.addConstraint(Sketcher.Constraint("Equal", 11, 12))
sketch2.addConstraint(Sketcher.Constraint("Equal", 12, 14))
sketch2.addConstraint(Sketcher.Constraint("Equal", 14, 15))
sketch2.addConstraint(Sketcher.Constraint("Equal", 10, 16))
sketch2.addConstraint(Sketcher.Constraint("Equal", 16, 18))
sketch2.addConstraint(Sketcher.Constraint("Equal", 15, 19))
sketch2.addConstraint(Sketcher.Constraint("Equal", 18, 20))
sketch2.addConstraint(Sketcher.Constraint("Equal", 4, 22))
sketch2.addConstraint(Sketcher.Constraint("Equal", 22, 24))
sketch2.addConstraint(Sketcher.Constraint("Equal", 24, 25))
sketch2.addConstraint(Sketcher.Constraint("Equal", 0, 26))
sketch2.addConstraint(Sketcher.Constraint("Equal", 27, 29))
sketch2.addConstraint(Sketcher.Constraint("Equal", 29, 30))
sketch2.addConstraint(Sketcher.Constraint("Equal", 30, 32))
sketch2.addConstraint(Sketcher.Constraint("Equal", 32, 33))
sketch2.addConstraint(Sketcher.Constraint("Equal", 28, 34))
sketch2.addConstraint(Sketcher.Constraint("Equal", 33, 35))
sketch2.addConstraint(Sketcher.Constraint("Equal", 35, 36))
sketch2.addConstraint(Sketcher.Constraint("Equal", 36, 37))
sketch2.addConstraint(Sketcher.Constraint("Equal", 37, 38))
sketch2.addConstraint(Sketcher.Constraint("Equal", 31, 39))
sketch2.addConstraint(Sketcher.Constraint("Equal", 38, 40))
sketch2.addConstraint(Sketcher.Constraint("Horizontal", 6, 3, 8, 3))
sketch2.addConstraint(Sketcher.Constraint("Horizontal", 7, 3, 11, 3))
sketch2.addConstraint(Sketcher.Constraint("Horizontal", 15, 3, 19, 3))
sketch2.addConstraint(Sketcher.Constraint("Horizontal", 18, 3, 20, 3))
sketch2.addConstraint(Sketcher.Constraint("Horizontal", 29, 3, 31, 3))
sketch2.addConstraint(Sketcher.Constraint("Horizontal", 31, 3, 32, 3))
sketch2.addConstraint(Sketcher.Constraint("Horizontal", 26, 3, 33, 3))
sketch2.addConstraint(Sketcher.Constraint("Horizontal", 33, 3, 36, 3))
sketch2.addConstraint(Sketcher.Constraint("Horizontal", 37, 3, 39, 3))
sketch2.addConstraint(Sketcher.Constraint("Horizontal", 39, 3, 40, 3))
sketch2.addConstraint(Sketcher.Constraint("Horizontal", 9, 2, 11, 2))
sketch2.addConstraint(Sketcher.Constraint("Horizontal", 14, 2, 16, 1))
sketch2.addConstraint(Sketcher.Constraint("Horizontal", 36, 3, 26, 1))
sketch2.addConstraint(Sketcher.Constraint("Vertical", 10, 3, 16, 3))
sketch2.addConstraint(Sketcher.Constraint("Vertical", 8, 3, 18, 3))
sketch2.addConstraint(Sketcher.Constraint("Vertical", 4, 3, 22, 3))
sketch2.addConstraint(Sketcher.Constraint("Vertical", 28, 3, 34, 3))
sketch2.addConstraint(Sketcher.Constraint("Vertical", 29, 3, 37, 3))
sketch2.addConstraint(Sketcher.Constraint("Vertical", 31, 3, 39, 3))
sketch2.addConstraint(Sketcher.Constraint("Vertical", 32, 3, 40, 3))
sketch2.addConstraint(Sketcher.Constraint("Vertical", 26, 3, 2, 2))
sketch2.addConstraint(Sketcher.Constraint("Vertical", 1, 2, 24, 2))
sketch2.addConstraint(Sketcher.Constraint("Equal", 3, 23))
sketch2.addConstraint(Sketcher.Constraint("Diameter", 31, 3.0))
sketch2.addConstraint(Sketcher.Constraint("Radius", 0, 15.0))
sketch2.addConstraint(Sketcher.Constraint("Radius", 1, 4.0))
sketch2.addConstraint(Sketcher.Constraint("Radius", 6, 5.0))
sketch2.addConstraint(Sketcher.Constraint("Diameter", 27, 2.7))
sketch2.addConstraint(Sketcher.Constraint("Diameter", 28, 2.9))
sketch2.addConstraint(Sketcher.Constraint("Radius", 7, 3.5))
sketch2.addConstraint(Sketcher.Constraint("DistanceX", 9, 2, 9, 1, 37.0))
sketch2.addConstraint(Sketcher.Constraint("DistanceY", 13, 2, 13, 1, 45.0))
sketch2.addConstraint(Sketcher.Constraint("DistanceX", 5, 2, 5, 1, 15.5))
sketch2.addConstraint(Sketcher.Constraint("DistanceY", 3, 1, 3, 2, 2.425824))
sketch2.addConstraint(Sketcher.Constraint("DistanceY", -1, 1, 1, 3, 157.392669))
sketch2.addConstraint(Sketcher.Constraint("DistanceX", 0, 1, -1, 1, 8.868518))
sketch2.addConstraint(Sketcher.Constraint("DistanceX", 1, 2, -1, 1, 7.91472))
sketch2.addConstraint(Sketcher.Constraint("DistanceX", 28, 3, -1, 1, 67.710623))
sketch2.addConstraint(Sketcher.Constraint("DistanceY", -1, 1, 28, 3, 121.318493))
sketch2.addConstraint(Sketcher.Constraint("DistanceX", 29, 3, -1, 1, 42.060623))
sketch2.addConstraint(Sketcher.Constraint("DistanceY", -1, 1, 29, 3, 118.818493))
sketch2.addConstraint(Sketcher.Constraint("DistanceX", 31, 3, -1, 1, 22.060623))
sketch2.addConstraint(Sketcher.Constraint("DistanceX", 32, 3, -1, 1, 12.060623))
sketch2.addConstraint(Sketcher.Constraint("DistanceX", 33, 3, -1, 1, 44.560623))
sketch2.addConstraint(Sketcher.Constraint("DistanceY", -1, 1, 34, 3, 156.318493))
sketch2.addConstraint(Sketcher.Constraint("DistanceX", 36, 3, -1, 1, 34.560623))
sketch2.addConstraint(Sketcher.Constraint("DistanceY", -1, 1, 37, 3, 158.818493))
pad2 = doc.addObject("PartDesign::Pad", "Pad001")
body2.addObject(pad2)
pad2.Profile = sketch2
pad2.Length = 2

doc.recompute()
